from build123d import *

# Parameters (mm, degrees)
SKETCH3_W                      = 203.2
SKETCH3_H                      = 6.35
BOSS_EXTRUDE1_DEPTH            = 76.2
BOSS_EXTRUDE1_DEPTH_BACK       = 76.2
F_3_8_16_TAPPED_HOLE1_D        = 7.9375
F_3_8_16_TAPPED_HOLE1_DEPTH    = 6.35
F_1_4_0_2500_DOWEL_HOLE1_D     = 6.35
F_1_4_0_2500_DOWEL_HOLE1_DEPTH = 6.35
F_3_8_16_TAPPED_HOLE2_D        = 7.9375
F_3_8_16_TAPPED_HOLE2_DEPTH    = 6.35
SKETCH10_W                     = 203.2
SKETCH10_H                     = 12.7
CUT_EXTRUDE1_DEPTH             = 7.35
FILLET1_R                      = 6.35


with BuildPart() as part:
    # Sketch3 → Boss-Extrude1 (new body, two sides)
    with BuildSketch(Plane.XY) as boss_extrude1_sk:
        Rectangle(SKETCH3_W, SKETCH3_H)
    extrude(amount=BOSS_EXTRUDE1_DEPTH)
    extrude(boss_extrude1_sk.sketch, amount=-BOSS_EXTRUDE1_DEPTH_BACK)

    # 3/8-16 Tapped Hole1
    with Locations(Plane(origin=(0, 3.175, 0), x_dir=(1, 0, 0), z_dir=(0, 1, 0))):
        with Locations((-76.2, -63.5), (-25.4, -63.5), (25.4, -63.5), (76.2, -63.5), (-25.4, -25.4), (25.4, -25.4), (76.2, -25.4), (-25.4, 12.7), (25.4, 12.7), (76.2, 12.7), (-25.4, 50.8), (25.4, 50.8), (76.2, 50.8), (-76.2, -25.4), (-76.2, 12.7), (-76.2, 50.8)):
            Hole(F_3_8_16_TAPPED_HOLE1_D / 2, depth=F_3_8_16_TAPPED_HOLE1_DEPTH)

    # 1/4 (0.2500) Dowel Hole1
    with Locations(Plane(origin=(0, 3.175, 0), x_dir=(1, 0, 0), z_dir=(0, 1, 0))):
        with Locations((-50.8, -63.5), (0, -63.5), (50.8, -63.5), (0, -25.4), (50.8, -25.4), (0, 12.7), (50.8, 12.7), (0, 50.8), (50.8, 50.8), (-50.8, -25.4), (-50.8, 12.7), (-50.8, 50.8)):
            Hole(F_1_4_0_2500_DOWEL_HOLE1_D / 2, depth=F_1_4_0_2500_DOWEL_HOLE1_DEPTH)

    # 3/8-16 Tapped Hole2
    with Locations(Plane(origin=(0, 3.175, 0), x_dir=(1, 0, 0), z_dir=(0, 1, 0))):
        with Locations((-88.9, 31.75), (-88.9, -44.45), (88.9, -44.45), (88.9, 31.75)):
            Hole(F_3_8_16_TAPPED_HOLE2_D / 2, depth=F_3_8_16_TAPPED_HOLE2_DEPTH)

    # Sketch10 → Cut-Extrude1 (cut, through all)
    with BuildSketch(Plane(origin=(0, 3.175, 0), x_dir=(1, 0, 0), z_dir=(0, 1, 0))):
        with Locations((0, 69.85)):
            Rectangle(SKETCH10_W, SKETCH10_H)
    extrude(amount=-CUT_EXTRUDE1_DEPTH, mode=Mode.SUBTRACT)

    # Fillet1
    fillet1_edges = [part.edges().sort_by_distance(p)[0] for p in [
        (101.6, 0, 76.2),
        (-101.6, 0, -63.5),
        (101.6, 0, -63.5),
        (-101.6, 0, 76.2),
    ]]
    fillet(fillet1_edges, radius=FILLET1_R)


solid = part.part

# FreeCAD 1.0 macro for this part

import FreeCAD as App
import Part
import Sketcher
from FreeCAD import Vector
Q = App.Units.Quantity


def edges_at(feature, points):
    """Names of the edges that pass closest to the given points."""
    edges = feature.Shape.Edges
    near = lambda p: min(range(len(edges)), key=lambda i: edges[i].distToShape(Part.Vertex(*p))[0])
    return sorted({f"Edge{near(p) + 1}" for p in points})


def add_polygon(sketch, points):
    """Adds a closed chain of lines whose ends are joined by coincident constraints."""
    first, n = sketch.GeometryCount, len(points)
    for a, b in zip(points, points[1:] + points[:1]):
        sketch.addGeometry(Part.LineSegment(App.Vector(*a, 0), App.Vector(*b, 0)), False)
    for i in range(n):
        sketch.addConstraint(Sketcher.Constraint("Coincident", first + i, 2, first + (i + 1) % n, 1))

doc = App.newDocument("Part")
body = doc.addObject("PartDesign::Body", "Body")

# Sketch on XY plane
sketch1 = doc.addObject("Sketcher::SketchObject", "Sketch")
body.addObject(sketch1)
sketch1.AttachmentSupport = (doc.XY_Plane, [""])
sketch1.MapMode = "FlatFace"
add_polygon(sketch1, [(-102, 3), (-102, -3), (102, -3), (102, 3)])  # lines 0-3
sketch1.addConstraint([
    Sketcher.Constraint("Vertical", 0),
    Sketcher.Constraint("Horizontal", 1),
    Sketcher.Constraint("Vertical", 2),
    Sketcher.Constraint("Horizontal", 3),
    Sketcher.Constraint("Symmetric", 0, 2, 2, 2, -1, 1),
    Sketcher.Constraint("DistanceX", 1, 1, 1, 2, Q("8 in")),
    Sketcher.Constraint("DistanceY", 0, 2, 0, 1, Q("0.25 in")),
])
pad1 = doc.addObject("PartDesign::Pad", "Pad")
body.addObject(pad1)
pad1.Profile = sketch1
pad1.Type = "TwoLengths"
pad1.Length = Q("3 in")
pad1.Length2 = Q("3 in")

# Sketch on XZ plane
sketch2 = doc.addObject("Sketcher::SketchObject", "Sketch001")
body.addObject(sketch2)
sketch2.AttachmentSupport = (doc.XZ_Plane, [""])
sketch2.MapMode = "FlatFace"
sketch2.AttachmentOffset = App.Placement(Vector(0, 0, -0.125 * 25.4), App.Rotation())
sketch2.addGeometry([
    Part.Circle(Vector(-76.2, 63.5, 0), Vector(0, 0, 1), 4),  # 0
    Part.Circle(Vector(-25.4, 63.5, 0), Vector(0, 0, 1), 4),  # 1
    Part.Circle(Vector(25.4, 63.5, 0), Vector(0, 0, 1), 4),  # 2
    Part.Circle(Vector(76.2, 63.5, 0), Vector(0, 0, 1), 4),  # 3
    Part.Circle(Vector(-25.4, 25.4, 0), Vector(0, 0, 1), 4),  # 4
    Part.Circle(Vector(25.4, 25.4, 0), Vector(0, 0, 1), 4),  # 5
    Part.Circle(Vector(76.2, 25.4, 0), Vector(0, 0, 1), 4),  # 6
    Part.Circle(Vector(-25.4, -12.7, 0), Vector(0, 0, 1), 4),  # 7
    Part.Circle(Vector(25.4, -12.7, 0), Vector(0, 0, 1), 4),  # 8
    Part.Circle(Vector(76.2, -12.7, 0), Vector(0, 0, 1), 4),  # 9
    Part.Circle(Vector(-25.4, -50.8, 0), Vector(0, 0, 1), 4),  # 10
    Part.Circle(Vector(25.4, -50.8, 0), Vector(0, 0, 1), 4),  # 11
    Part.Circle(Vector(76.2, -50.8, 0), Vector(0, 0, 1), 4),  # 12
    Part.Circle(Vector(-76.2, 25.4, 0), Vector(0, 0, 1), 4),  # 13
    Part.Circle(Vector(-76.2, -12.7, 0), Vector(0, 0, 1), 4),  # 14
    Part.Circle(Vector(-76.2, -50.8, 0), Vector(0, 0, 1), 4),  # 15
], False)
sketch2.addConstraint([
    Sketcher.Constraint("Equal", 0, 1),
    Sketcher.Constraint("Equal", 1, 2),
    Sketcher.Constraint("Equal", 2, 3),
    Sketcher.Constraint("Equal", 3, 4),
    Sketcher.Constraint("Equal", 4, 5),
    Sketcher.Constraint("Equal", 5, 6),
    Sketcher.Constraint("Equal", 6, 7),
    Sketcher.Constraint("Equal", 7, 8),
    Sketcher.Constraint("Equal", 8, 9),
    Sketcher.Constraint("Equal", 9, 10),
    Sketcher.Constraint("Equal", 10, 11),
    Sketcher.Constraint("Equal", 11, 12),
    Sketcher.Constraint("Equal", 12, 13),
    Sketcher.Constraint("Equal", 13, 14),
    Sketcher.Constraint("Equal", 14, 15),
    Sketcher.Constraint("Symmetric", 1, 3, 2, 3, -2),
    Sketcher.Constraint("Symmetric", 0, 3, 3, 3, -2),
    Sketcher.Constraint("Symmetric", 4, 3, 5, 3, -2),
    Sketcher.Constraint("Symmetric", 7, 3, 8, 3, -2),
    Sketcher.Constraint("Symmetric", 10, 3, 11, 3, -2),
    Sketcher.Constraint("Symmetric", 6, 3, 13, 3, -2),
    Sketcher.Constraint("Symmetric", 9, 3, 14, 3, -2),
    Sketcher.Constraint("Symmetric", 12, 3, 15, 3, -2),
    Sketcher.Constraint("Horizontal", 0, 3, 1, 3),
    Sketcher.Constraint("Horizontal", 5, 3, 6, 3),
    Sketcher.Constraint("Horizontal", 8, 3, 9, 3),
    Sketcher.Constraint("Horizontal", 11, 3, 12, 3),
    Sketcher.Constraint("Vertical", 1, 3, 4, 3),
    Sketcher.Constraint("Vertical", 3, 3, 6, 3),
    Sketcher.Constraint("Vertical", 4, 3, 7, 3),
    Sketcher.Constraint("Vertical", 6, 3, 9, 3),
    Sketcher.Constraint("Vertical", 7, 3, 10, 3),
    Sketcher.Constraint("Vertical", 9, 3, 12, 3),
    Sketcher.Constraint("Diameter", 0, Q("0.3125 in")),
    Sketcher.Constraint("DistanceX", 0, 3, -1, 1, Q("3 in")),
    Sketcher.Constraint("DistanceX", 1, 3, -1, 1, Q("1 in")),
    Sketcher.Constraint("DistanceY", -1, 1, 4, 3, Q("1 in")),
    Sketcher.Constraint("DistanceY", 10, 3, -1, 1, Q("2 in")),
    Sketcher.Constraint("DistanceY", 7, 3, 1, 3, Q("3 in")),
    Sketcher.Constraint("DistanceY", -1, 1, 0, 3, Q("2.5 in")),
])
doc.recompute()
hole = doc.addObject("PartDesign::Hole", "Hole")
body.addObject(hole)
hole.Profile = sketch2
hole.ThreadType = "None"
hole.Diameter = Q("0.3125 in")
hole.DepthType = "Dimension"
hole.Depth = Q("0.25 in")
hole.DrillPoint = "Flat"
hole.Reversed = True

# Sketch on XZ plane
sketch3 = doc.addObject("Sketcher::SketchObject", "Sketch002")
body.addObject(sketch3)
sketch3.AttachmentSupport = (doc.XZ_Plane, [""])
sketch3.MapMode = "FlatFace"
sketch3.AttachmentOffset = App.Placement(Vector(0, 0, -0.125 * 25.4), App.Rotation())
sketch3.addGeometry([
    Part.Circle(Vector(-50.8, 63.5, 0), Vector(0, 0, 1), 3.2),  # 0
    Part.Circle(Vector(0, 63.5, 0), Vector(0, 0, 1), 3.2),  # 1
    Part.Circle(Vector(50.8, 63.5, 0), Vector(0, 0, 1), 3.2),  # 2
    Part.Circle(Vector(0, 25.4, 0), Vector(0, 0, 1), 3.2),  # 3
    Part.Circle(Vector(50.8, 25.4, 0), Vector(0, 0, 1), 3.2),  # 4
    Part.Circle(Vector(0, -12.7, 0), Vector(0, 0, 1), 3.2),  # 5
    Part.Circle(Vector(50.8, -12.7, 0), Vector(0, 0, 1), 3.2),  # 6
    Part.Circle(Vector(0, -50.8, 0), Vector(0, 0, 1), 3.2),  # 7
    Part.Circle(Vector(50.8, -50.8, 0), Vector(0, 0, 1), 3.2),  # 8
    Part.Circle(Vector(-50.8, 25.4, 0), Vector(0, 0, 1), 3.2),  # 9
    Part.Circle(Vector(-50.8, -12.7, 0), Vector(0, 0, 1), 3.2),  # 10
    Part.Circle(Vector(-50.8, -50.8, 0), Vector(0, 0, 1), 3.2),  # 11
], False)
sketch3.addConstraint([
    Sketcher.Constraint("Equal", 0, 1),
    Sketcher.Constraint("Equal", 1, 2),
    Sketcher.Constraint("Equal", 2, 3),
    Sketcher.Constraint("Equal", 3, 4),
    Sketcher.Constraint("Equal", 4, 5),
    Sketcher.Constraint("Equal", 5, 6),
    Sketcher.Constraint("Equal", 6, 7),
    Sketcher.Constraint("Equal", 7, 8),
    Sketcher.Constraint("Equal", 8, 9),
    Sketcher.Constraint("Equal", 9, 10),
    Sketcher.Constraint("Equal", 10, 11),
    Sketcher.Constraint("Symmetric", 0, 3, 2, 3, -2),
    Sketcher.Constraint("Symmetric", 4, 3, 9, 3, -2),
    Sketcher.Constraint("Symmetric", 6, 3, 10, 3, -2),
    Sketcher.Constraint("Symmetric", 8, 3, 11, 3, -2),
    Sketcher.Constraint("PointOnObject", 1, 3, -2),
    Sketcher.Constraint("PointOnObject", 3, 3, -2),
    Sketcher.Constraint("PointOnObject", 5, 3, -2),
    Sketcher.Constraint("PointOnObject", 7, 3, -2),
    Sketcher.Constraint("Horizontal", 0, 3, 1, 3),
    Sketcher.Constraint("Horizontal", 3, 3, 4, 3),
    Sketcher.Constraint("Horizontal", 5, 3, 6, 3),
    Sketcher.Constraint("Horizontal", 7, 3, 8, 3),
    Sketcher.Constraint("Vertical", 2, 3, 4, 3),
    Sketcher.Constraint("Vertical", 4, 3, 6, 3),
    Sketcher.Constraint("Vertical", 6, 3, 8, 3),
    Sketcher.Constraint("Diameter", 0, Q("0.25 in")),
    Sketcher.Constraint("DistanceX", 0, 3, -1, 1, Q("2 in")),
    Sketcher.Constraint("DistanceY", -1, 1, 3, 3, Q("1 in")),
    Sketcher.Constraint("DistanceY", 7, 3, -1, 1, Q("2 in")),
    Sketcher.Constraint("DistanceY", 5, 3, 1, 3, Q("3 in")),
    Sketcher.Constraint("DistanceY", -1, 1, 0, 3, Q("2.5 in")),
])
doc.recompute()
hole2 = doc.addObject("PartDesign::Hole", "Hole001")
body.addObject(hole2)
hole2.Profile = sketch3
hole2.ThreadType = "None"
hole2.Diameter = Q("0.25 in")
hole2.DepthType = "Dimension"
hole2.Depth = Q("0.25 in")
hole2.DrillPoint = "Flat"
hole2.Reversed = True

# Sketch on XZ plane
sketch4 = doc.addObject("Sketcher::SketchObject", "Sketch003")
body.addObject(sketch4)
sketch4.AttachmentSupport = (doc.XZ_Plane, [""])
sketch4.MapMode = "FlatFace"
sketch4.AttachmentOffset = App.Placement(Vector(0, 0, -0.125 * 25.4), App.Rotation())
sketch4.addGeometry([
    Part.Circle(Vector(-88.9, -31.8, 0), Vector(0, 0, 1), 4),
    Part.Circle(Vector(-88.9, 44.5, 0), Vector(0, 0, 1), 4),
    Part.Circle(Vector(88.9, 44.5, 0), Vector(0, 0, 1), 4),
    Part.Circle(Vector(88.9, -31.8, 0), Vector(0, 0, 1), 4),
], False)
sketch4.addConstraint([
    Sketcher.Constraint("Equal", 0, 1),
    Sketcher.Constraint("Equal", 1, 2),
    Sketcher.Constraint("Equal", 2, 3),
    Sketcher.Constraint("Symmetric", 1, 3, 2, 3, -2),
    Sketcher.Constraint("Symmetric", 0, 3, 3, 3, -2),
    Sketcher.Constraint("Vertical", 0, 3, 1, 3),
    Sketcher.Constraint("Diameter", 0, Q("0.3125 in")),
    Sketcher.Constraint("DistanceY", 0, 3, 1, 3, Q("3 in")),
    Sketcher.Constraint("DistanceX", 1, 3, 2, 3, Q("7 in")),
    Sketcher.Constraint("DistanceY", 0, 3, -1, 1, Q("1.25 in")),
])
doc.recompute()
hole3 = doc.addObject("PartDesign::Hole", "Hole002")
body.addObject(hole3)
hole3.Profile = sketch4
hole3.ThreadType = "None"
hole3.Diameter = Q("0.3125 in")
hole3.DepthType = "Dimension"
hole3.Depth = Q("0.25 in")
hole3.DrillPoint = "Flat"
hole3.Reversed = True

# Sketch on XZ plane
sketch5 = doc.addObject("Sketcher::SketchObject", "Sketch004")
body.addObject(sketch5)
sketch5.AttachmentSupport = (doc.XZ_Plane, [""])
sketch5.MapMode = "FlatFace"
sketch5.AttachmentOffset = App.Placement(Vector(0, 0, -0.125 * 25.4), App.Rotation())
add_polygon(sketch5, [(-102, -76), (-102, -64), (102, -64), (102, -76)])  # lines 0-3
sketch5.addConstraint([
    Sketcher.Constraint("Vertical", 0),
    Sketcher.Constraint("Horizontal", 1),
    Sketcher.Constraint("Vertical", 2),
    Sketcher.Constraint("Horizontal", 3),
    Sketcher.Constraint("DistanceX", 1, 1, 1, 2, Q("8 in")),
    Sketcher.Constraint("DistanceY", 0, 1, 0, 2, Q("0.5 in")),
    Sketcher.Constraint("DistanceX", 0, 2, -1, 1, Q("4 in")),
    Sketcher.Constraint("DistanceY", 2, 2, -1, 1, Q("3 in")),
])
pocket1 = doc.addObject("PartDesign::Pocket", "Pocket")
body.addObject(pocket1)
pocket1.Profile = sketch5
pocket1.Type = "ThroughAll"
pocket1.Reversed = True
doc.recompute()

fillet = doc.addObject("PartDesign::Fillet", "Fillet")
body.addObject(fillet)
fillet.Base = (pocket1, edges_at(pocket1, [
    (101.6, 0, 76.2),
    (-101.6, 0, -63.5),
    (101.6, 0, -63.5),
    (-101.6, 0, 76.2),
]))
fillet.Radius = Q("0.25 in")

doc.recompute()
